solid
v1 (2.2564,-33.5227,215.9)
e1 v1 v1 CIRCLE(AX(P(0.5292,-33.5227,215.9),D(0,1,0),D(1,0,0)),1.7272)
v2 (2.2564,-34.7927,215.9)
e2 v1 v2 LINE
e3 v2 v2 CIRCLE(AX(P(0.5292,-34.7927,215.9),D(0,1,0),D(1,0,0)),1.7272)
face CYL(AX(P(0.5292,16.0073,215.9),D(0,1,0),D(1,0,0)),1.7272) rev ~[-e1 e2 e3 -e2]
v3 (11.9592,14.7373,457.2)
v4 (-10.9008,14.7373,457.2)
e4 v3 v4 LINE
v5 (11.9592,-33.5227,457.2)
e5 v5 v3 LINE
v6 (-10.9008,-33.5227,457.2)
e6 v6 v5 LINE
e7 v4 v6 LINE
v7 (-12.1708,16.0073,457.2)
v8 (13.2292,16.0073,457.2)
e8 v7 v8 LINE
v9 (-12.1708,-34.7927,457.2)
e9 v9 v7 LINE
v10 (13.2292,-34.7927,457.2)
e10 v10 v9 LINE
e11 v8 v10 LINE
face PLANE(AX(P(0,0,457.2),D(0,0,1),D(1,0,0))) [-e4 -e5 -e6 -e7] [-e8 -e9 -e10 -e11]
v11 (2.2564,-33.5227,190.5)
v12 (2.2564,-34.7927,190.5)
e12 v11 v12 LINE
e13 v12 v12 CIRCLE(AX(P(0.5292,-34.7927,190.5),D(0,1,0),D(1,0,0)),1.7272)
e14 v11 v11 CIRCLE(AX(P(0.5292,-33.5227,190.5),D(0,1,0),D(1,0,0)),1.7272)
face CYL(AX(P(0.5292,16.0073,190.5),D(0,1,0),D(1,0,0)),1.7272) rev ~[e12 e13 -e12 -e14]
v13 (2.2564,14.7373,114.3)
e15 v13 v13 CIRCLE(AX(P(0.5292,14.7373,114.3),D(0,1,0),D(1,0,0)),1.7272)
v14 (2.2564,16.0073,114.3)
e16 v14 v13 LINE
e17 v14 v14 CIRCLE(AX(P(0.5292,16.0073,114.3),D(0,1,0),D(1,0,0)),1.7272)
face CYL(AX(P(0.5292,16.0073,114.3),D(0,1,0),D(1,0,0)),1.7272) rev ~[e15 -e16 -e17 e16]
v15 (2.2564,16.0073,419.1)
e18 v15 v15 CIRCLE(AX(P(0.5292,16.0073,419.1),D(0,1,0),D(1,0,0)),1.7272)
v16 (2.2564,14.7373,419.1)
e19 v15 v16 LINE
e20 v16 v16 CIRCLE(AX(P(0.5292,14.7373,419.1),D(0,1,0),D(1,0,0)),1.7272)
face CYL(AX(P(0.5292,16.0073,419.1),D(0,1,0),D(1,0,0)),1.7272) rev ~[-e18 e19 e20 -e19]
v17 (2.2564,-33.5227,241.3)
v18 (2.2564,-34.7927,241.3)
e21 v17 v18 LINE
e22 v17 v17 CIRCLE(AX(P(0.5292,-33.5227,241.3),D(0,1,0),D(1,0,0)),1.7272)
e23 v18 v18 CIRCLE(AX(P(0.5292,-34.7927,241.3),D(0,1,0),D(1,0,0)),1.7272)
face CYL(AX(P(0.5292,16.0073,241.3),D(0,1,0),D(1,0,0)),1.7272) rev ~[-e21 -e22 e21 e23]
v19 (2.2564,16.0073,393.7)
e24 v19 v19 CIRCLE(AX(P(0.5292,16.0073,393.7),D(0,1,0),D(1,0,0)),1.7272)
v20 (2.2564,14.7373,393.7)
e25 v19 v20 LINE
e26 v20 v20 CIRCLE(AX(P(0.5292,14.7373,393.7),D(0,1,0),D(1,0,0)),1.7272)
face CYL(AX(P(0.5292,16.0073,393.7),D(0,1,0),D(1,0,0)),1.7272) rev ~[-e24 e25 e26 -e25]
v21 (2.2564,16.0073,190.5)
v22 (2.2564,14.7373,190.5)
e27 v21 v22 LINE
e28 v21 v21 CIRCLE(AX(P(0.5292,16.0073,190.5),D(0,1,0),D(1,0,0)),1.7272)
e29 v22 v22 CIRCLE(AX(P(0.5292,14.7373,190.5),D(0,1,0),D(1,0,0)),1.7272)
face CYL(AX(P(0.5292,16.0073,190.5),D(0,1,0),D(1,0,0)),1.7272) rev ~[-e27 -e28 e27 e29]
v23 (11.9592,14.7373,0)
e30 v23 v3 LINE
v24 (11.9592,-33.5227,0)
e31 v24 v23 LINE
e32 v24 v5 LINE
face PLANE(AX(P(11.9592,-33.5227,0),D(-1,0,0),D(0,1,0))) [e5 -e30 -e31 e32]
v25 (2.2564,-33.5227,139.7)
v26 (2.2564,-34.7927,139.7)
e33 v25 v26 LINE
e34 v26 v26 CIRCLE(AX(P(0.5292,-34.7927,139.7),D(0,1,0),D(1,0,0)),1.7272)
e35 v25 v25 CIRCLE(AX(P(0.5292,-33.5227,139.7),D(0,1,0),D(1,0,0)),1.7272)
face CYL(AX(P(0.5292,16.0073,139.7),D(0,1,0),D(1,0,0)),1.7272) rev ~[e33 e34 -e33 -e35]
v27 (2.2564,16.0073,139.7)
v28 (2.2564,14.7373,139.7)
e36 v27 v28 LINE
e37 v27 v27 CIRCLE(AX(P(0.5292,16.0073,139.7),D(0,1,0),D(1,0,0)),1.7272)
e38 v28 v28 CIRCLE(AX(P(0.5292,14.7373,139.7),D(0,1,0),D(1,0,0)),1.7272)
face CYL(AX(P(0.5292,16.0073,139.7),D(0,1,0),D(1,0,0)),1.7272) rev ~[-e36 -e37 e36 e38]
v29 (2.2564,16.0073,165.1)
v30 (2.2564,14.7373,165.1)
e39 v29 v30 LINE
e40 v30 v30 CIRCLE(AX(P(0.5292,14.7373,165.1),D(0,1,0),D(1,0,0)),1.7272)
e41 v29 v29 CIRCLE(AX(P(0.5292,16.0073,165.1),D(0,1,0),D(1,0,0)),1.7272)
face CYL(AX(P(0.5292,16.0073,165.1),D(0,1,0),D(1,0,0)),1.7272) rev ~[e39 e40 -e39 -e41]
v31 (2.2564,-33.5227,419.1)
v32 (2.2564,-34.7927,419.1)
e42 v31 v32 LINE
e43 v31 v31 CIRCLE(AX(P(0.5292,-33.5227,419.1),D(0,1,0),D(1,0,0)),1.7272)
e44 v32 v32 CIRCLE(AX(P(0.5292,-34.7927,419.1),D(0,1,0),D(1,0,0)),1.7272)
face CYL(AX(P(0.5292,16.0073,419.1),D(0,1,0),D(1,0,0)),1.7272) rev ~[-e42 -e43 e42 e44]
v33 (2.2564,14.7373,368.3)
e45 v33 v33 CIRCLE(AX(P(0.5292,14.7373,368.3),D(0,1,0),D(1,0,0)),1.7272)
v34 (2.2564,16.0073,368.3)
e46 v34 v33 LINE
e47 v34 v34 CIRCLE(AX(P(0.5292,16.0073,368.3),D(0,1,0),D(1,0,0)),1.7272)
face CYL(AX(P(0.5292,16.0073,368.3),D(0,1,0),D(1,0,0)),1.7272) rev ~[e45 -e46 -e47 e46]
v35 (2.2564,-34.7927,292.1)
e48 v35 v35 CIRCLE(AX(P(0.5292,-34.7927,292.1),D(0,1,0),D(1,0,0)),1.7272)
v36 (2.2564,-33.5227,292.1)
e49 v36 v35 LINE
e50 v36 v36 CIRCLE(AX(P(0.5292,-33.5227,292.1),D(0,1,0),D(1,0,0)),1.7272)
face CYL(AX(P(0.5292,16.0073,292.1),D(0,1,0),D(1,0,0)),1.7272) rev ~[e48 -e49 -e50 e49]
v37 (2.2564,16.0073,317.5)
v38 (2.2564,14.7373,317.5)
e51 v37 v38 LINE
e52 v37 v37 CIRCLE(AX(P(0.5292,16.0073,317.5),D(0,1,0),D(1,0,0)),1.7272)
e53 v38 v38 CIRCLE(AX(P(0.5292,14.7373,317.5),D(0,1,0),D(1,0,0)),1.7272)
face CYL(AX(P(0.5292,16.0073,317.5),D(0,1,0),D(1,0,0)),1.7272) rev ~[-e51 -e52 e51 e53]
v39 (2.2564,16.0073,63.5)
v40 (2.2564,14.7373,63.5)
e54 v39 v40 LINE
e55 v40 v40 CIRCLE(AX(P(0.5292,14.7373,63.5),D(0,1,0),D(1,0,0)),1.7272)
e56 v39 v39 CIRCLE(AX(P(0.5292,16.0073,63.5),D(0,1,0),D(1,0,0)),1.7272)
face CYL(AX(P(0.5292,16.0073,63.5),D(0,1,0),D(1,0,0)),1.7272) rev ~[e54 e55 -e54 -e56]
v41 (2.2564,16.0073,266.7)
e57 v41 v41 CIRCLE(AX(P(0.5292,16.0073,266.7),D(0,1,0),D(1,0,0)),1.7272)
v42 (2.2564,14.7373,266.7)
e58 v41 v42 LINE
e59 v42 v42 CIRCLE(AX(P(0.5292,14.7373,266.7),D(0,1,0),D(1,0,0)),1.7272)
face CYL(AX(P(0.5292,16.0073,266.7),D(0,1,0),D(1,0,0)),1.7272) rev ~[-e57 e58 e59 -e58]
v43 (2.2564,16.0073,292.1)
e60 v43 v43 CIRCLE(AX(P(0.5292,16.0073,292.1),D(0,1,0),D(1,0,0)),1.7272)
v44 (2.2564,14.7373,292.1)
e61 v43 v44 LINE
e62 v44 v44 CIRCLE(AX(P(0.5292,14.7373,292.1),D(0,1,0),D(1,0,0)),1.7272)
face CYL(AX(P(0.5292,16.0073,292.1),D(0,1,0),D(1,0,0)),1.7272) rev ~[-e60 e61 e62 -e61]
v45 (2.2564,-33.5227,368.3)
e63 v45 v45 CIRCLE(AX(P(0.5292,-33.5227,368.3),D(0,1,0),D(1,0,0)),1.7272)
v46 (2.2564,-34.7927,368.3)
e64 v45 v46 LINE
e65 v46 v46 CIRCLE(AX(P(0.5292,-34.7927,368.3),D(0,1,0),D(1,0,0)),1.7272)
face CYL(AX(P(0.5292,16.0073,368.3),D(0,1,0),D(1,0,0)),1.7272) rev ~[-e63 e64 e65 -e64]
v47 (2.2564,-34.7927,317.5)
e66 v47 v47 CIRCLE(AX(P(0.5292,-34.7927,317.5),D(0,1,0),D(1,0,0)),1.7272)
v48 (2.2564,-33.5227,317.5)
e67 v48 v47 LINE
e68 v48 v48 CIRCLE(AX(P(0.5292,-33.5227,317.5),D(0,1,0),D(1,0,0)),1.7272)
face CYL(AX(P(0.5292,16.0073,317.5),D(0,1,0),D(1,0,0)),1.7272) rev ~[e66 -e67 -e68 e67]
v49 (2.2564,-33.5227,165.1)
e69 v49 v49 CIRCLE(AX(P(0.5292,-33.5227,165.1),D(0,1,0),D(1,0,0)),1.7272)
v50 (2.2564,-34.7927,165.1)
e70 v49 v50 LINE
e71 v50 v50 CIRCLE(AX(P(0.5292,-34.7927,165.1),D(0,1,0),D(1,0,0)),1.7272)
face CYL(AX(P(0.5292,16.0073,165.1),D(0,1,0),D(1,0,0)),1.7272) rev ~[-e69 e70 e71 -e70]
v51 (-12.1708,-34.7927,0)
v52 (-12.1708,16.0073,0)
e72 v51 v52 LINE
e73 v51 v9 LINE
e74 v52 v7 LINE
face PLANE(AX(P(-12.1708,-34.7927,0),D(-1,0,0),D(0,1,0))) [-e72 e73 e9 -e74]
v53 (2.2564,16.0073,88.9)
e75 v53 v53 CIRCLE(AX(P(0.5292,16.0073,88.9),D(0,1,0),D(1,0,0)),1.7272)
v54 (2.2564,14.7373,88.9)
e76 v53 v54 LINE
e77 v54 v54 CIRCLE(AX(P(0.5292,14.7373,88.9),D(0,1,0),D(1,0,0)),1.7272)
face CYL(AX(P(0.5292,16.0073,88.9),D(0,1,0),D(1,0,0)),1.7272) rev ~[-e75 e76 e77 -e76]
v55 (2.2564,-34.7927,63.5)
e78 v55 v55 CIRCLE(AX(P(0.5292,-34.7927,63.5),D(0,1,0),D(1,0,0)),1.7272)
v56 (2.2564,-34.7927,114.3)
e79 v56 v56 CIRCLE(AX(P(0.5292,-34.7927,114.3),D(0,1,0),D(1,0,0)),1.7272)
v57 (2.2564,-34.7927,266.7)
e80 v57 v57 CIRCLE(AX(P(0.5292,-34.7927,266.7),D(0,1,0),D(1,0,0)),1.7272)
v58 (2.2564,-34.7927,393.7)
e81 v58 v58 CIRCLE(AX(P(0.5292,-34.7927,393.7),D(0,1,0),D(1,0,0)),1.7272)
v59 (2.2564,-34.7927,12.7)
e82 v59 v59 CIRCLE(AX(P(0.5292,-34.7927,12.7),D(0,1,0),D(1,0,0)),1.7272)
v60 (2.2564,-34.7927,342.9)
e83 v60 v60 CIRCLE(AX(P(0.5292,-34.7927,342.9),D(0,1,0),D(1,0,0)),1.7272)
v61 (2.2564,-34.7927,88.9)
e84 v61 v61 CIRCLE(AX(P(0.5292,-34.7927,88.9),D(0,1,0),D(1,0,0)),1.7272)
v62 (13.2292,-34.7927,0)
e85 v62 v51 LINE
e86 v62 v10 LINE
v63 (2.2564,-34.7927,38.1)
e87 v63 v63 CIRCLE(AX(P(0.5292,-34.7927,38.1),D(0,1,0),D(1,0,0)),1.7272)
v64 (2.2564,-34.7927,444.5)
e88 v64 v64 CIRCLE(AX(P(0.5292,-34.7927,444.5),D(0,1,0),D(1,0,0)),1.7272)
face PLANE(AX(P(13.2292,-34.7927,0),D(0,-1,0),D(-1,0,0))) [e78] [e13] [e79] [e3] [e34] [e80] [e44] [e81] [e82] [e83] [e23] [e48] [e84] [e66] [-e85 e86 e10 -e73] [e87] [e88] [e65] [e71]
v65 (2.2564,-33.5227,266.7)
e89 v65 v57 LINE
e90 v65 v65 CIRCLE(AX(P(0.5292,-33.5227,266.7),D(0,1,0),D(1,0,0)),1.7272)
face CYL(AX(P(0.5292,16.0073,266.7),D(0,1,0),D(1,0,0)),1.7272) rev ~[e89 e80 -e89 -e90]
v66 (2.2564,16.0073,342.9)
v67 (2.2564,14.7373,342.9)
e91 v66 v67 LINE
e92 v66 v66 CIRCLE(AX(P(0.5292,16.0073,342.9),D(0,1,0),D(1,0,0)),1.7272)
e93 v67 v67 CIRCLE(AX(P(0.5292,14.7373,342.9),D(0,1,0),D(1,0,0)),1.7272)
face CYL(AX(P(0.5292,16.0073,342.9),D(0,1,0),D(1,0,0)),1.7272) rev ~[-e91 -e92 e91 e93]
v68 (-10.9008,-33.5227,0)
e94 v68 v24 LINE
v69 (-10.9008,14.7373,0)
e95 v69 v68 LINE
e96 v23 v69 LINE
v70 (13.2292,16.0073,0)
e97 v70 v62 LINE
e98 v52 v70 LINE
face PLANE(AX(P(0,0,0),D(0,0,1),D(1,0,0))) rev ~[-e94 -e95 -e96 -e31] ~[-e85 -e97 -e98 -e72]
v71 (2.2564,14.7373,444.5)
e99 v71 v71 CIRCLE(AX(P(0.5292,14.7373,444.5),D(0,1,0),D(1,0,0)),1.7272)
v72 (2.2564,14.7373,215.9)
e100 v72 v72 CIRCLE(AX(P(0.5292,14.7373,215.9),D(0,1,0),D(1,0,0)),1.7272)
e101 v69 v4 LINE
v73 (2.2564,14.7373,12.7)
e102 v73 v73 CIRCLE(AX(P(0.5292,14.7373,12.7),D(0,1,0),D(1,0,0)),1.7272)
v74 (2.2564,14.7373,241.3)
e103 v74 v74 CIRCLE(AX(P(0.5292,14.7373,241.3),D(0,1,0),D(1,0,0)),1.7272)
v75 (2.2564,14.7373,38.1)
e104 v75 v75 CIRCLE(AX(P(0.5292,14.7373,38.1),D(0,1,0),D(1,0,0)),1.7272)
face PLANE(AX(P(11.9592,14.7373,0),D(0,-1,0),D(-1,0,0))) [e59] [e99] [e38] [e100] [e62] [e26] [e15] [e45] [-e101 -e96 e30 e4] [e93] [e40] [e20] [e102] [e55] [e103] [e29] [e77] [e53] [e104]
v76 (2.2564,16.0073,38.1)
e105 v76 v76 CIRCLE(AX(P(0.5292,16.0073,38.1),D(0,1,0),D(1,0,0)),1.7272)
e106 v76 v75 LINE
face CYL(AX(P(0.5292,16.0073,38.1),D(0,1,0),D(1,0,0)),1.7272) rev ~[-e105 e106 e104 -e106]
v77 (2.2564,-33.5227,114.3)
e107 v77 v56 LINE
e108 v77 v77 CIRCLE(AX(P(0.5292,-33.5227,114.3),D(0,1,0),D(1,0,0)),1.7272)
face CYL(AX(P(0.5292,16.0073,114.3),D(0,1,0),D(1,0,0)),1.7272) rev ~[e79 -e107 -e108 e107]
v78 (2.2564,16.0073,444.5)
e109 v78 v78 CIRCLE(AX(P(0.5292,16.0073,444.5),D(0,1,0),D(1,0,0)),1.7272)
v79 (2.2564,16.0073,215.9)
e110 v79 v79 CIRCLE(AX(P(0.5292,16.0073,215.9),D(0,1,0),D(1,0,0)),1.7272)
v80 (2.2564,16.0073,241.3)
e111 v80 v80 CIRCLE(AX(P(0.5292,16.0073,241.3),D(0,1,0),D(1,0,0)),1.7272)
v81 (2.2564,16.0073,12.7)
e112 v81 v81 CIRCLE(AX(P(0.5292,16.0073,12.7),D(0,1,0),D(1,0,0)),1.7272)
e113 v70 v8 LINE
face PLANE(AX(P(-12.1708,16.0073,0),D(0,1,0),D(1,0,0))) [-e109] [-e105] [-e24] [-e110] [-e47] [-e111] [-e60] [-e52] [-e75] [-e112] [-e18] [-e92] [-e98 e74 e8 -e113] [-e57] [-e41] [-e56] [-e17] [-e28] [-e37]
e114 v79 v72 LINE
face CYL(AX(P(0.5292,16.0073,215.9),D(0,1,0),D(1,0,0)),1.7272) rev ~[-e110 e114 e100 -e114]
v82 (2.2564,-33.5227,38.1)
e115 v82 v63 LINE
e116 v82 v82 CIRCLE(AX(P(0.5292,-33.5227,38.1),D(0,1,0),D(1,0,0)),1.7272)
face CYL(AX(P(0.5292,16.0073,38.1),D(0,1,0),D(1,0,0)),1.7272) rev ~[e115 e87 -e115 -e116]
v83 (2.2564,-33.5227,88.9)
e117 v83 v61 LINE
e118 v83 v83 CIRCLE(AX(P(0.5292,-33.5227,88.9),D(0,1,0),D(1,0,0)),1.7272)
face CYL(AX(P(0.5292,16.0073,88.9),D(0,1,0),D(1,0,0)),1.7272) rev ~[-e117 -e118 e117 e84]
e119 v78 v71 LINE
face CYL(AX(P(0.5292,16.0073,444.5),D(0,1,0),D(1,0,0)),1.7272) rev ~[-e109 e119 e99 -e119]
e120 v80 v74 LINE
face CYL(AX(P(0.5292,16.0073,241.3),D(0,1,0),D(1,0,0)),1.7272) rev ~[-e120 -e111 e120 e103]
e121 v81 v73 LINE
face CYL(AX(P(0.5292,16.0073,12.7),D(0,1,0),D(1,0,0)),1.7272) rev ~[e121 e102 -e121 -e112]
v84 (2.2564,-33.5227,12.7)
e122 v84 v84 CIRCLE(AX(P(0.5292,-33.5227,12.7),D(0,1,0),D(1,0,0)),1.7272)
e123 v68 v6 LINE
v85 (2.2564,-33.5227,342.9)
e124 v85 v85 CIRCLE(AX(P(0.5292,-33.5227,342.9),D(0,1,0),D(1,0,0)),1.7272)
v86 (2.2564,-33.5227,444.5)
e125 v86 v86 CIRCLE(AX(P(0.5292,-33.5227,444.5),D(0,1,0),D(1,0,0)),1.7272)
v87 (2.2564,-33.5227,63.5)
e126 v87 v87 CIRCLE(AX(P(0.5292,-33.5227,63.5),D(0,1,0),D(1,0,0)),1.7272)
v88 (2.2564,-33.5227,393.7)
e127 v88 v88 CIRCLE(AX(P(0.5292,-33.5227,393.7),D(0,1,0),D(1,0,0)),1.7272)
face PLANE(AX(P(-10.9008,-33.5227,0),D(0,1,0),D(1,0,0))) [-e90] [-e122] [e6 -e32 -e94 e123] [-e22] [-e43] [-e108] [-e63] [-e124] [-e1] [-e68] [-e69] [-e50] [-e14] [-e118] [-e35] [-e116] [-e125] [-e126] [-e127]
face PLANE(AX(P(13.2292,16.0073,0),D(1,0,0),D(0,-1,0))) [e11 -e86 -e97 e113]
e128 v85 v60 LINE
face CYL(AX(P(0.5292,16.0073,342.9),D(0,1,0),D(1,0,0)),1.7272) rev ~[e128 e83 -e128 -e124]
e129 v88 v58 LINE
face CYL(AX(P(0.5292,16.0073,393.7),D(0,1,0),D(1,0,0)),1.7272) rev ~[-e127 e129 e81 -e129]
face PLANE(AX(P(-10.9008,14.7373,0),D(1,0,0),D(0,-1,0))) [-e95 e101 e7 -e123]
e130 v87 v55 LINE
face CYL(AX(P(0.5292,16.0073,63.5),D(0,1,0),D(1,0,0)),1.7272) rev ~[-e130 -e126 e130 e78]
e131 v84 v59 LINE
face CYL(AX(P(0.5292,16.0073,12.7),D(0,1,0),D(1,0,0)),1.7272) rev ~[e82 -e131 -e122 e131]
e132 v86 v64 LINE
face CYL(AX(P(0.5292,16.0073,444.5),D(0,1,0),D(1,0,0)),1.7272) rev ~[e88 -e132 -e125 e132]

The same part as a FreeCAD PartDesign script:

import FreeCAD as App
import Part
import Sketcher
from FreeCAD import Vector
Q = App.Units.Quantity


def add_polygon(sketch, points):
    """Adds a closed chain of lines whose ends are joined by coincident constraints."""
    first, n = sketch.GeometryCount, len(points)
    for a, b in zip(points, points[1:] + points[:1]):
        sketch.addGeometry(Part.LineSegment(App.Vector(*a, 0), App.Vector(*b, 0)), False)
    for i in range(n):
        sketch.addConstraint(Sketcher.Constraint("Coincident", first + i, 2, first + (i + 1) % n, 1))

doc = App.newDocument("Part")
params = doc.addObject("Spreadsheet::Sheet", "Params")
for row, (alias, value) in enumerate([
    ("sketch1_width", "1 in"),
    ("sketch1_height", "2 in"),
    ("pad1_length", "18 in"),
    ("sketch2_diameter", "0.136 in"),
    ("linearpattern_pitch", "1 in"),
], start=1):
    params.set(f"A{row}", alias)
    params.set(f"B{row}", "=" + value)
    params.setAlias(f"B{row}", alias)

body = doc.addObject("PartDesign::Body", "Body")

sketch1 = body.newObject("Sketcher::SketchObject", "Sketch")
sketch1.AttachmentSupport = (doc.getObject("XY_Plane"), [""])
sketch1.MapMode = "FlatFace"
add_polygon(sketch1, [(13, 16), (-12, 16), (-12, -35), (13, -35)])
add_polygon(sketch1, [(-11, 15), (12, 15), (12, -34), (-11, -34)])
sketch1.addConstraint([
    Sketcher.Constraint("Horizontal", 0),
    Sketcher.Constraint("Vertical", 1),
    Sketcher.Constraint("Horizontal", 2),
    Sketcher.Constraint("Vertical", 3),
    Sketcher.Constraint("Horizontal", 4),
    Sketcher.Constraint("Vertical", 5),
    Sketcher.Constraint("Horizontal", 6),
    Sketcher.Constraint("Vertical", 7),
    Sketcher.Constraint("DistanceX", 0, 2, 0, 1, Q("1 in")),
    Sketcher.Constraint("DistanceY", 1, 2, 1, 1, Q("2 in")),
    Sketcher.Constraint("DistanceX", 4, 2, 3, 2, Q("0.05 in")),
    Sketcher.Constraint("DistanceY", 4, 2, 3, 2, Q("0.05 in")),
    Sketcher.Constraint("DistanceY", 2, 2, 5, 2, Q("0.05 in")),
    Sketcher.Constraint("DistanceX", 1, 2, 6, 2, Q("0.05 in")),
    Sketcher.Constraint("DistanceY", -1, 1, 0, 2, Q("0.6302 in")),
    Sketcher.Constraint("DistanceX", 0, 2, -1, 1, Q("12.1708 mm")),
])
sketch1.setExpression("Constraints[16]", "Params.sketch1_width")
sketch1.setExpression("Constraints[17]", "Params.sketch1_height")
pad1 = body.newObject("PartDesign::Pad", "Pad")
pad1.Profile = sketch1
pad1.setExpression("Length", "Params.pad1_length")

sketch2 = body.newObject("Sketcher::SketchObject", "Sketch001")
sketch2.AttachmentSupport = (doc.getObject("XZ_Plane"), [""])
sketch2.MapMode = "FlatFace"
sketch2.AttachmentOffset = App.Placement(Vector(0, 0, -0.6302087 * 25.4), App.Rotation())
sketch2.addGeometry(Part.Circle(Vector(0.5, 12.7, 0), Vector(0, 0, 1), 1.7), False)
sketch2.addConstraint([
    Sketcher.Constraint("Diameter", 0, Q("0.136 in")),
    Sketcher.Constraint("DistanceY", -1, 1, 0, 3, Q("0.5 in")),
    Sketcher.Constraint("DistanceX", -1, 1, 0, 3, Q("0.5292 mm")),
])
sketch2.setExpression("Constraints[0]", "Params.sketch2_diameter")
pocket1 = body.newObject("PartDesign::Pocket", "Pocket")
pocket1.Profile = sketch2
pocket1.Type = "ThroughAll"
pocket1.Reversed = True
doc.recompute()

linearpattern = body.newObject("PartDesign::LinearPattern", "LinearPattern")
linearpattern.Originals = [pocket1]
linearpattern.Direction = (doc.getObject("Z_Axis"), [""])
linearpattern.Mode = "offset"
linearpattern.setExpression("Offset", "Params.linearpattern_pitch")
linearpattern.Occurrences = 46
body.Tip = linearpattern

doc.recompute()
